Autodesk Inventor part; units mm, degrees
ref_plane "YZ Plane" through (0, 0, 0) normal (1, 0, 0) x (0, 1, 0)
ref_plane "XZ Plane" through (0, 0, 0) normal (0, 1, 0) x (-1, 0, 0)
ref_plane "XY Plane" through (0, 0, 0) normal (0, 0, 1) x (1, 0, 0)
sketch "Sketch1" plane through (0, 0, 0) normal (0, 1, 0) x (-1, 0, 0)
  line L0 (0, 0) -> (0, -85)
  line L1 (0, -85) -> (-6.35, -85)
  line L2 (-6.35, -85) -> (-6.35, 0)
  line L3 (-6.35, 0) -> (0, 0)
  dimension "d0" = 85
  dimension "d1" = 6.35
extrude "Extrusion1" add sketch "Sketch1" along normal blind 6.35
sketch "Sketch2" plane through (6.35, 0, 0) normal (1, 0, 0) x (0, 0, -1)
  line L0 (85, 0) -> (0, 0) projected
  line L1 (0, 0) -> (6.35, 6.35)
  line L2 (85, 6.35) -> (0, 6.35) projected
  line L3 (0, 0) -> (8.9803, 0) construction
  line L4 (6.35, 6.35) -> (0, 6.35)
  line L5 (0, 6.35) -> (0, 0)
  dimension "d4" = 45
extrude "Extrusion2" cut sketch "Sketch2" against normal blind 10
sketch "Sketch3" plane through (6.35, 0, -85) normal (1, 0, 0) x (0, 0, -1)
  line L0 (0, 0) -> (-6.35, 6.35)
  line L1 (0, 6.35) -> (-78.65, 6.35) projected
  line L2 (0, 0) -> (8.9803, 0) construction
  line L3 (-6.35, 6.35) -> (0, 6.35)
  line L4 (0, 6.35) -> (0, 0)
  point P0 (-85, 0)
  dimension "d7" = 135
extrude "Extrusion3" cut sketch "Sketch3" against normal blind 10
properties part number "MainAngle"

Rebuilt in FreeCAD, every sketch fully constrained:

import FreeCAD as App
import Part
import Sketcher

doc = App.newDocument("Part")
body = doc.addObject("PartDesign::Body", "Body")

# Sketch on XZ plane
sketch1 = doc.addObject("Sketcher::SketchObject", "Sketch")
body.addObject(sketch1)
sketch1.AttachmentSupport = (doc.XZ_Plane, [""])
sketch1.MapMode = "FlatFace"
sketch1.addGeometry(Part.LineSegment(App.Vector(0, -85, 0), App.Vector(0, 0, 0)), False)
sketch1.addGeometry(Part.LineSegment(App.Vector(0, 0, 0), App.Vector(6.35, 0, 0)), False)
sketch1.addGeometry(Part.LineSegment(App.Vector(6.35, 0, 0), App.Vector(6.35, -85, 0)), False)
sketch1.addGeometry(Part.LineSegment(App.Vector(6.35, -85, 0), App.Vector(0, -85, 0)), False)
sketch1.addConstraint(Sketcher.Constraint("Coincident", 0, 2, 1, 1))
sketch1.addConstraint(Sketcher.Constraint("Coincident", 1, 2, 2, 1))
sketch1.addConstraint(Sketcher.Constraint("Coincident", 2, 2, 3, 1))
sketch1.addConstraint(Sketcher.Constraint("Coincident", 3, 2, 0, 1))
sketch1.addConstraint(Sketcher.Constraint("Vertical", 0))
sketch1.addConstraint(Sketcher.Constraint("Horizontal", 1))
sketch1.addConstraint(Sketcher.Constraint("Vertical", 2))
sketch1.addConstraint(Sketcher.Constraint("Horizontal", 3))
sketch1.addConstraint(Sketcher.Constraint("Coincident", 0, 2, -1, 1))
sketch1.addConstraint(Sketcher.Constraint("DistanceY", 0, 1, 0, 2, 85.0))
sketch1.addConstraint(Sketcher.Constraint("DistanceX", 1, 1, 1, 2, 6.35))
pad1 = doc.addObject("PartDesign::Pad", "Pad")
body.addObject(pad1)
pad1.Profile = sketch1
pad1.Length = 6.35
pad1.Reversed = True

# Sketch on YZ plane
sketch2 = doc.addObject("Sketcher::SketchObject", "Sketch001")
body.addObject(sketch2)
sketch2.AttachmentSupport = (doc.YZ_Plane, [""])
sketch2.MapMode = "FlatFace"
sketch2.AttachmentOffset = App.Placement(App.Vector(0, 0, 6.35), App.Rotation())
sketch2.addGeometry(Part.LineSegment(App.Vector(6.35, 0, 0), App.Vector(0, 0, 0)), False)
sketch2.addGeometry(Part.LineSegment(App.Vector(0, 0, 0), App.Vector(6.35, -6.35, 0)), False)
sketch2.addGeometry(Part.LineSegment(App.Vector(6.35, -6.35, 0), App.Vector(6.35, 0, 0)), False)
sketch2.addConstraint(Sketcher.Constraint("Coincident", 0, 2, 1, 1))
sketch2.addConstraint(Sketcher.Constraint("Coincident", 1, 2, 2, 1))
sketch2.addConstraint(Sketcher.Constraint("Coincident", 2, 2, 0, 1))
sketch2.addConstraint(Sketcher.Constraint("Horizontal", 0))
sketch2.addConstraint(Sketcher.Constraint("Vertical", 2))
sketch2.addConstraint(Sketcher.Constraint("Coincident", 0, 2, -1, 1))
sketch2.addConstraint(Sketcher.Constraint("Equal", 0, 2))
sketch2.addConstraint(Sketcher.Constraint("DistanceX", 0, 2, 0, 1, 6.35))
pocket1 = doc.addObject("PartDesign::Pocket", "Pocket")
body.addObject(pocket1)
pocket1.Profile = sketch2
pocket1.Length = 10

# Sketch on YZ plane
sketch3 = doc.addObject("Sketcher::SketchObject", "Sketch002")
body.addObject(sketch3)
sketch3.AttachmentSupport = (doc.YZ_Plane, [""])
sketch3.MapMode = "FlatFace"
sketch3.AttachmentOffset = App.Placement(App.Vector(0, 0, 6.35), App.Rotation())
sketch3.addGeometry(Part.LineSegment(App.Vector(6.35, -78.65, 0), App.Vector(0, -85, 0)), False)
sketch3.addGeometry(Part.LineSegment(App.Vector(0, -85, 0), App.Vector(6.35, -85, 0)), False)
sketch3.addGeometry(Part.LineSegment(App.Vector(6.35, -85, 0), App.Vector(6.35, -78.65, 0)), False)
sketch3.addConstraint(Sketcher.Constraint("Coincident", 0, 2, 1, 1))
sketch3.addConstraint(Sketcher.Constraint("Coincident", 1, 2, 2, 1))
sketch3.addConstraint(Sketcher.Constraint("Coincident", 2, 2, 0, 1))
sketch3.addConstraint(Sketcher.Constraint("Horizontal", 1))
sketch3.addConstraint(Sketcher.Constraint("Vertical", 2))
sketch3.addConstraint(Sketcher.Constraint("PointOnObject", 0, 2, -2))
sketch3.addConstraint(Sketcher.Constraint("Equal", 1, 2))
sketch3.addConstraint(Sketcher.Constraint("DistanceY", 0, 2, -1, 1, 85.0))
sketch3.addConstraint(Sketcher.Constraint("DistanceX", 1, 1, 1, 2, 6.35))
pocket2 = doc.addObject("PartDesign::Pocket", "Pocket001")
body.addObject(pocket2)
pocket2.Profile = sketch3
pocket2.Length = 10

doc.recompute()
